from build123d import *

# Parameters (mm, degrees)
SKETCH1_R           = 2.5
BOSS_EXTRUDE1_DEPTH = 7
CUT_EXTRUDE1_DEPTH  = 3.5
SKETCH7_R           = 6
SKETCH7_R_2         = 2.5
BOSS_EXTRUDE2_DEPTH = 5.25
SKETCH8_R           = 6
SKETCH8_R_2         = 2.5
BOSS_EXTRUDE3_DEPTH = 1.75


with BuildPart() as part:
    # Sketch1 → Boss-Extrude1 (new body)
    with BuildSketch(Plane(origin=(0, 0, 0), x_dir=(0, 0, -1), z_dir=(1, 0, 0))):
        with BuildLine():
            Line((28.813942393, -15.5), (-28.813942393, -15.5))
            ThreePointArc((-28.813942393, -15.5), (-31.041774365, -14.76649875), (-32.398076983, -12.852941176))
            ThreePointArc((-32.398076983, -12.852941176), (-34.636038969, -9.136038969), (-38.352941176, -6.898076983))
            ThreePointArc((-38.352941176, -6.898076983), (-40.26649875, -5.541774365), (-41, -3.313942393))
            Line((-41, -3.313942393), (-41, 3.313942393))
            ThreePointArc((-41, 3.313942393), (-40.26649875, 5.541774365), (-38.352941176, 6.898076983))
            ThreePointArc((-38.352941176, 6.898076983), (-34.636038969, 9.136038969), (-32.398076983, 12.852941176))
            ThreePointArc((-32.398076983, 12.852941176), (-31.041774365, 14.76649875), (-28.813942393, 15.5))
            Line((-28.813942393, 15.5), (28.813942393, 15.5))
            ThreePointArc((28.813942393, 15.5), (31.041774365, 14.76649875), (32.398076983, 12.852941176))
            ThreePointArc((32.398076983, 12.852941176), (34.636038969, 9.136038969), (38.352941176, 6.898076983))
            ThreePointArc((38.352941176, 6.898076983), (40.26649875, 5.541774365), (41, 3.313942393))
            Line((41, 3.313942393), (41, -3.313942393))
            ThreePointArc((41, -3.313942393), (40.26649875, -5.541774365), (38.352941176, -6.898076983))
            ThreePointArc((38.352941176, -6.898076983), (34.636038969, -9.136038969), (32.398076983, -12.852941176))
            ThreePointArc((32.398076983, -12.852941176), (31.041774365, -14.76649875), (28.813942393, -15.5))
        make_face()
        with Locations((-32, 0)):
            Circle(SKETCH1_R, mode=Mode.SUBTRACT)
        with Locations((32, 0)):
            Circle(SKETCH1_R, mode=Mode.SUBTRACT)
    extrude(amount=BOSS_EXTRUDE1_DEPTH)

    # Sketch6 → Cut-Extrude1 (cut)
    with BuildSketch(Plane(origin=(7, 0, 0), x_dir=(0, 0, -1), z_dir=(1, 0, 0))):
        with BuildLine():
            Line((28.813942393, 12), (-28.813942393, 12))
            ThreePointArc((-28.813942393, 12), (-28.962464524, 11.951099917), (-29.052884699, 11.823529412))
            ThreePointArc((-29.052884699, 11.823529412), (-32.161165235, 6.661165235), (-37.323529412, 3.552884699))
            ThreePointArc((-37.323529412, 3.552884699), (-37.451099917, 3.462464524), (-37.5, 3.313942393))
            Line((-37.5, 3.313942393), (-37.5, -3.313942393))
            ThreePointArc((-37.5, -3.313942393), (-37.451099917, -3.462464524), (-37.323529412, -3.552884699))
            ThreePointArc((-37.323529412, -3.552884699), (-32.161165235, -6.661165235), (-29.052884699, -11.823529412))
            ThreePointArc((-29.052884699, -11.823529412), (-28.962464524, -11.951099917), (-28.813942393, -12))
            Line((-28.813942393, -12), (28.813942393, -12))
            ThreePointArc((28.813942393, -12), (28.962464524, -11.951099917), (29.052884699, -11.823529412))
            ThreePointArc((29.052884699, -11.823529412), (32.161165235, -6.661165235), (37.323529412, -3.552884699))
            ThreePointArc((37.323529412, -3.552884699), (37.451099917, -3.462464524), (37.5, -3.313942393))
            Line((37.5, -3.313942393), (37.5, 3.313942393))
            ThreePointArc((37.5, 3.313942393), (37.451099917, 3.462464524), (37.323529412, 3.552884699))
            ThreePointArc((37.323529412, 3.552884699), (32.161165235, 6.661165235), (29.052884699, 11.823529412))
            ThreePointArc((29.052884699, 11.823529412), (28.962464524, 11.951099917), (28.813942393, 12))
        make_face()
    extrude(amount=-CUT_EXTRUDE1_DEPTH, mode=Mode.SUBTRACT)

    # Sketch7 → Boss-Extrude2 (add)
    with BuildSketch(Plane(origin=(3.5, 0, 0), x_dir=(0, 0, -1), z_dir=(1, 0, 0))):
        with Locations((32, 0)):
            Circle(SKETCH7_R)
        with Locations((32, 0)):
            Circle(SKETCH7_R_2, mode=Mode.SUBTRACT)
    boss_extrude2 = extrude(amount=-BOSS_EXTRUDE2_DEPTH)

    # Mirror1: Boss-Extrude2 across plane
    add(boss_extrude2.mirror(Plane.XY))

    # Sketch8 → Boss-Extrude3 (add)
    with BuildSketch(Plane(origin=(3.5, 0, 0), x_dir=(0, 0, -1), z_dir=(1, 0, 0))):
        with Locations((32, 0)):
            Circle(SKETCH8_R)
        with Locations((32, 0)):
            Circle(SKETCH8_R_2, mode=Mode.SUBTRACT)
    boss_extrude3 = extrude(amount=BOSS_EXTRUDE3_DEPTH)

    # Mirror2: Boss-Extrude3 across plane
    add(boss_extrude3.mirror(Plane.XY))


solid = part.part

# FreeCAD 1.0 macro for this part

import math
import FreeCAD as App
import Part
import Sketcher

doc = App.newDocument("Part")
body = doc.addObject("PartDesign::Body", "Body")

sketch1 = body.newObject("Sketcher::SketchObject", "Sketch")
sketch1.AttachmentSupport = (doc.getObject("YZ_Plane"), [""])
sketch1.MapMode = "FlatFace"
sketch1.addGeometry([
    Part.LineSegment(App.Vector(-15.5, 28.8, 0), App.Vector(-15.5, -28.8, 0)),
    Part.ArcOfCircle(Part.Circle(App.Vector(-11.8, -28.8, 0), App.Vector(0, 0, 1), 3.7), math.radians(180), math.radians(253)),
    Part.ArcOfCircle(Part.Circle(App.Vector(-15.5, -41, 0), App.Vector(0, 0, 1), 9), math.radians(17), math.radians(73)),
    Part.ArcOfCircle(Part.Circle(App.Vector(-3.3, -37.3, 0), App.Vector(0, 0, 1), 3.7), math.radians(-163), math.radians(-90)),
    Part.LineSegment(App.Vector(-3.3, -41, 0), App.Vector(3.3, -41, 0)),
    Part.ArcOfCircle(Part.Circle(App.Vector(3.3, -37.3, 0), App.Vector(0, 0, 1), 3.7), math.radians(-90), math.radians(-17)),
    Part.ArcOfCircle(Part.Circle(App.Vector(15.5, -41, 0), App.Vector(0, 0, 1), 9), math.radians(107), math.radians(163)),
    Part.ArcOfCircle(Part.Circle(App.Vector(11.8, -28.8, 0), App.Vector(0, 0, 1), 3.7), math.radians(-73), math.radians(0)),
    Part.LineSegment(App.Vector(15.5, -28.8, 0), App.Vector(15.5, 28.8, 0)),
    Part.ArcOfCircle(Part.Circle(App.Vector(11.8, 28.8, 0), App.Vector(0, 0, 1), 3.7), math.radians(0), math.radians(73)),
    Part.ArcOfCircle(Part.Circle(App.Vector(15.5, 41, 0), App.Vector(0, 0, 1), 9), math.radians(-163), math.radians(-107)),
    Part.ArcOfCircle(Part.Circle(App.Vector(3.3, 37.3, 0), App.Vector(0, 0, 1), 3.7), math.radians(17), math.radians(90)),
    Part.LineSegment(App.Vector(3.3, 41, 0), App.Vector(-3.3, 41, 0)),
    Part.ArcOfCircle(Part.Circle(App.Vector(-3.3, 37.3, 0), App.Vector(0, 0, 1), 3.7), math.radians(90), math.radians(163)),
    Part.ArcOfCircle(Part.Circle(App.Vector(-15.5, 41, 0), App.Vector(0, 0, 1), 9), math.radians(-73), math.radians(-17)),
    Part.ArcOfCircle(Part.Circle(App.Vector(-11.8, 28.8, 0), App.Vector(0, 0, 1), 3.7), math.radians(107), math.radians(180)),
    Part.Circle(App.Vector(0, -32, 0), App.Vector(0, 0, 1), 2.5),
    Part.Circle(App.Vector(0, 32, 0), App.Vector(0, 0, 1), 2.5),
], False)
sketch1.addConstraint([
    Sketcher.Constraint("Tangent", 0, 2, 1, 1),
    Sketcher.Constraint("Tangent", 1, 2, 2, 2),
    Sketcher.Constraint("Tangent", 2, 1, 3, 1),
    Sketcher.Constraint("Tangent", 3, 2, 4, 1),
    Sketcher.Constraint("Tangent", 4, 2, 5, 1),
    Sketcher.Constraint("Tangent", 5, 2, 6, 2),
    Sketcher.Constraint("Tangent", 6, 1, 7, 1),
    Sketcher.Constraint("Tangent", 7, 2, 8, 1),
    Sketcher.Constraint("Tangent", 8, 2, 9, 1),
    Sketcher.Constraint("Tangent", 9, 2, 10, 2),
    Sketcher.Constraint("Tangent", 10, 1, 11, 1),
    Sketcher.Constraint("Tangent", 11, 2, 12, 1),
    Sketcher.Constraint("Tangent", 12, 2, 13, 1),
    Sketcher.Constraint("Tangent", 13, 2, 14, 2),
    Sketcher.Constraint("Tangent", 14, 1, 15, 1),
    Sketcher.Constraint("Tangent", 15, 2, 0, 1),
    Sketcher.Constraint("Vertical", 0),
    Sketcher.Constraint("Horizontal", 4),
    Sketcher.Constraint("Vertical", 8),
    Sketcher.Constraint("Horizontal", 12),
    Sketcher.Constraint("Equal", 1, 3),
    Sketcher.Constraint("Equal", 3, 5),
    Sketcher.Constraint("Equal", 2, 6),
    Sketcher.Constraint("Equal", 5, 7),
    Sketcher.Constraint("Equal", 7, 9),
    Sketcher.Constraint("Equal", 6, 10),
    Sketcher.Constraint("Equal", 9, 11),
    Sketcher.Constraint("Equal", 11, 13),
    Sketcher.Constraint("Equal", 10, 14),
    Sketcher.Constraint("Equal", 13, 15),
    Sketcher.Constraint("Equal", 16, 17),
    Sketcher.Constraint("Symmetric", 1, 3, 9, 3, -1, 1),
    Sketcher.Constraint("Symmetric", 3, 3, 11, 3, -1, 1),
    Sketcher.Constraint("Symmetric", 6, 3, 14, 3, -1, 1),
    Sketcher.Constraint("Symmetric", 16, 3, 17, 3, -1, 1),
    Sketcher.Constraint("Symmetric", 2, 3, 6, 3, -2),
    Sketcher.Constraint("PointOnObject", 16, 3, -2),
    Sketcher.Constraint("Horizontal", 6, 3, 3, 2),
    Sketcher.Constraint("Vertical", 14, 3, 0, 2),
    Sketcher.Constraint("Diameter", 16, 5.0),
    Sketcher.Constraint("Radius", 2, 9.0),
    Sketcher.Constraint("Radius", 1, 3.75),
    Sketcher.Constraint("DistanceY", 2, 3, -1, 1, 41.0),
    Sketcher.Constraint("DistanceY", 16, 3, -1, 1, 32.0),
    Sketcher.Constraint("DistanceX", 2, 3, 6, 3, 31.0),
])
pad1 = body.newObject("PartDesign::Pad", "Pad")
pad1.Profile = sketch1
pad1.Length = 7

sketch2 = body.newObject("Sketcher::SketchObject", "Sketch001")
sketch2.AttachmentSupport = (doc.getObject("YZ_Plane"), [""])
sketch2.MapMode = "FlatFace"
sketch2.AttachmentOffset = App.Placement(App.Vector(0, 0, 7), App.Rotation())
sketch2.addGeometry([
    Part.LineSegment(App.Vector(12, -28.81, 0), App.Vector(12, 28.81, 0)),
    Part.ArcOfCircle(Part.Circle(App.Vector(11.75, 28.81, 0), App.Vector(0, 0, 1), 0.25), math.radians(0), math.radians(73)),
    Part.ArcOfCircle(Part.Circle(App.Vector(15.5, 41, 0), App.Vector(0, 0, 1), 12.5), math.radians(-163), math.radians(-107)),
    Part.ArcOfCircle(Part.Circle(App.Vector(3.31, 37.25, 0), App.Vector(0, 0, 1), 0.25), math.radians(17), math.radians(90)),
    Part.LineSegment(App.Vector(3.31, 37.5, 0), App.Vector(-3.31, 37.5, 0)),
    Part.ArcOfCircle(Part.Circle(App.Vector(-3.31, 37.25, 0), App.Vector(0, 0, 1), 0.25), math.radians(90), math.radians(163)),
    Part.ArcOfCircle(Part.Circle(App.Vector(-15.5, 41, 0), App.Vector(0, 0, 1), 12.5), math.radians(-73), math.radians(-17)),
    Part.ArcOfCircle(Part.Circle(App.Vector(-11.75, 28.81, 0), App.Vector(0, 0, 1), 0.25), math.radians(107), math.radians(180)),
    Part.LineSegment(App.Vector(-12, 28.81, 0), App.Vector(-12, -28.81, 0)),
    Part.ArcOfCircle(Part.Circle(App.Vector(-11.75, -28.81, 0), App.Vector(0, 0, 1), 0.25), math.radians(180), math.radians(253)),
    Part.ArcOfCircle(Part.Circle(App.Vector(-15.5, -41, 0), App.Vector(0, 0, 1), 12.5), math.radians(17), math.radians(73)),
    Part.ArcOfCircle(Part.Circle(App.Vector(-3.31, -37.25, 0), App.Vector(0, 0, 1), 0.25), math.radians(-163), math.radians(-90)),
    Part.LineSegment(App.Vector(-3.31, -37.5, 0), App.Vector(3.31, -37.5, 0)),
    Part.ArcOfCircle(Part.Circle(App.Vector(3.31, -37.25, 0), App.Vector(0, 0, 1), 0.25), math.radians(-90), math.radians(-17)),
    Part.ArcOfCircle(Part.Circle(App.Vector(15.5, -41, 0), App.Vector(0, 0, 1), 12.5), math.radians(107), math.radians(163)),
    Part.ArcOfCircle(Part.Circle(App.Vector(11.75, -28.81, 0), App.Vector(0, 0, 1), 0.25), math.radians(-73), math.radians(0)),
], False)
sketch2.addConstraint([
    Sketcher.Constraint("Tangent", 0, 2, 1, 1),
    Sketcher.Constraint("Tangent", 1, 2, 2, 2),
    Sketcher.Constraint("Tangent", 2, 1, 3, 1),
    Sketcher.Constraint("Tangent", 3, 2, 4, 1),
    Sketcher.Constraint("Tangent", 4, 2, 5, 1),
    Sketcher.Constraint("Tangent", 5, 2, 6, 2),
    Sketcher.Constraint("Tangent", 6, 1, 7, 1),
    Sketcher.Constraint("Tangent", 7, 2, 8, 1),
    Sketcher.Constraint("Tangent", 8, 2, 9, 1),
    Sketcher.Constraint("Tangent", 9, 2, 10, 2),
    Sketcher.Constraint("Tangent", 10, 1, 11, 1),
    Sketcher.Constraint("Tangent", 11, 2, 12, 1),
    Sketcher.Constraint("Tangent", 12, 2, 13, 1),
    Sketcher.Constraint("Tangent", 13, 2, 14, 2),
    Sketcher.Constraint("Tangent", 14, 1, 15, 1),
    Sketcher.Constraint("Tangent", 15, 2, 0, 1),
    Sketcher.Constraint("Vertical", 0),
    Sketcher.Constraint("Horizontal", 4),
    Sketcher.Constraint("Vertical", 8),
    Sketcher.Constraint("Horizontal", 12),
    Sketcher.Constraint("Equal", 1, 3),
    Sketcher.Constraint("Equal", 3, 5),
    Sketcher.Constraint("Equal", 2, 6),
    Sketcher.Constraint("Equal", 5, 7),
    Sketcher.Constraint("Equal", 7, 9),
    Sketcher.Constraint("Equal", 6, 10),
    Sketcher.Constraint("Equal", 9, 11),
    Sketcher.Constraint("Equal", 11, 13),
    Sketcher.Constraint("Equal", 10, 14),
    Sketcher.Constraint("Equal", 13, 15),
    Sketcher.Constraint("Symmetric", 1, 3, 9, 3, -1, 1),
    Sketcher.Constraint("Symmetric", 3, 3, 11, 3, -1, 1),
    Sketcher.Constraint("Symmetric", 6, 3, 14, 3, -1, 1),
    Sketcher.Constraint("Symmetric", 2, 3, 6, 3, -2),
    Sketcher.Constraint("Radius", 2, 12.5),
    Sketcher.Constraint("Radius", 1, 0.25),
    Sketcher.Constraint("DistanceY", -1, 1, 2, 3, 41.0),
    Sketcher.Constraint("DistanceX", -1, 1, 0, 2, 12.0),
    Sketcher.Constraint("DistanceX", 6, 3, 2, 3, 31.0),
    Sketcher.Constraint("DistanceY", -1, 1, 3, 2, 37.5),
])
pocket1 = body.newObject("PartDesign::Pocket", "Pocket")
pocket1.Profile = sketch2
pocket1.Length = 3.5

sketch3 = body.newObject("Sketcher::SketchObject", "Sketch002")
sketch3.AttachmentSupport = (doc.getObject("YZ_Plane"), [""])
sketch3.MapMode = "FlatFace"
sketch3.AttachmentOffset = App.Placement(App.Vector(0, 0, 3.5), App.Rotation())
sketch3.addGeometry([
    Part.Circle(App.Vector(0, -32, 0), App.Vector(0, 0, 1), 6),
    Part.Circle(App.Vector(0, -32, 0), App.Vector(0, 0, 1), 2.5),
], False)
sketch3.addConstraint([
    Sketcher.Constraint("Coincident", 1, 3, 0, 3),
    Sketcher.Constraint("PointOnObject", 0, 3, -2),
    Sketcher.Constraint("Diameter", 0, 12.0),
    Sketcher.Constraint("Diameter", 1, 5.0),
    Sketcher.Constraint("DistanceY", 0, 3, -1, 1, 32.0),
])
pad2 = body.newObject("PartDesign::Pad", "Pad001")
pad2.Profile = sketch3
pad2.Length = 5.25
pad2.Reversed = True
doc.recompute()

mirrored = body.newObject("PartDesign::Mirrored", "Mirrored")
mirrored.Originals = [pad2]
mirrored.MirrorPlane = (doc.getObject("XY_Plane"), [""])
body.Tip = mirrored

sketch4 = body.newObject("Sketcher::SketchObject", "Sketch003")
sketch4.AttachmentSupport = (doc.getObject("YZ_Plane"), [""])
sketch4.MapMode = "FlatFace"
sketch4.AttachmentOffset = App.Placement(App.Vector(0, 0, 3.5), App.Rotation())
sketch4.addGeometry([
    Part.Circle(App.Vector(0, -32, 0), App.Vector(0, 0, 1), 6),
    Part.Circle(App.Vector(0, -32, 0), App.Vector(0, 0, 1), 2.5),
], False)
sketch4.addConstraint([
    Sketcher.Constraint("Coincident", 1, 3, 0, 3),
    Sketcher.Constraint("PointOnObject", 0, 3, -2),
    Sketcher.Constraint("Diameter", 0, 12.0),
    Sketcher.Constraint("Diameter", 1, 5.0),
    Sketcher.Constraint("DistanceY", 0, 3, -1, 1, 32.0),
])
pad3 = body.newObject("PartDesign::Pad", "Pad002")
pad3.Profile = sketch4
pad3.Length = 1.75
doc.recompute()

mirrored2 = body.newObject("PartDesign::Mirrored", "Mirrored001")
mirrored2.Originals = [pad3]
mirrored2.MirrorPlane = (doc.getObject("XY_Plane"), [""])
body.Tip = mirrored2

doc.recompute()
